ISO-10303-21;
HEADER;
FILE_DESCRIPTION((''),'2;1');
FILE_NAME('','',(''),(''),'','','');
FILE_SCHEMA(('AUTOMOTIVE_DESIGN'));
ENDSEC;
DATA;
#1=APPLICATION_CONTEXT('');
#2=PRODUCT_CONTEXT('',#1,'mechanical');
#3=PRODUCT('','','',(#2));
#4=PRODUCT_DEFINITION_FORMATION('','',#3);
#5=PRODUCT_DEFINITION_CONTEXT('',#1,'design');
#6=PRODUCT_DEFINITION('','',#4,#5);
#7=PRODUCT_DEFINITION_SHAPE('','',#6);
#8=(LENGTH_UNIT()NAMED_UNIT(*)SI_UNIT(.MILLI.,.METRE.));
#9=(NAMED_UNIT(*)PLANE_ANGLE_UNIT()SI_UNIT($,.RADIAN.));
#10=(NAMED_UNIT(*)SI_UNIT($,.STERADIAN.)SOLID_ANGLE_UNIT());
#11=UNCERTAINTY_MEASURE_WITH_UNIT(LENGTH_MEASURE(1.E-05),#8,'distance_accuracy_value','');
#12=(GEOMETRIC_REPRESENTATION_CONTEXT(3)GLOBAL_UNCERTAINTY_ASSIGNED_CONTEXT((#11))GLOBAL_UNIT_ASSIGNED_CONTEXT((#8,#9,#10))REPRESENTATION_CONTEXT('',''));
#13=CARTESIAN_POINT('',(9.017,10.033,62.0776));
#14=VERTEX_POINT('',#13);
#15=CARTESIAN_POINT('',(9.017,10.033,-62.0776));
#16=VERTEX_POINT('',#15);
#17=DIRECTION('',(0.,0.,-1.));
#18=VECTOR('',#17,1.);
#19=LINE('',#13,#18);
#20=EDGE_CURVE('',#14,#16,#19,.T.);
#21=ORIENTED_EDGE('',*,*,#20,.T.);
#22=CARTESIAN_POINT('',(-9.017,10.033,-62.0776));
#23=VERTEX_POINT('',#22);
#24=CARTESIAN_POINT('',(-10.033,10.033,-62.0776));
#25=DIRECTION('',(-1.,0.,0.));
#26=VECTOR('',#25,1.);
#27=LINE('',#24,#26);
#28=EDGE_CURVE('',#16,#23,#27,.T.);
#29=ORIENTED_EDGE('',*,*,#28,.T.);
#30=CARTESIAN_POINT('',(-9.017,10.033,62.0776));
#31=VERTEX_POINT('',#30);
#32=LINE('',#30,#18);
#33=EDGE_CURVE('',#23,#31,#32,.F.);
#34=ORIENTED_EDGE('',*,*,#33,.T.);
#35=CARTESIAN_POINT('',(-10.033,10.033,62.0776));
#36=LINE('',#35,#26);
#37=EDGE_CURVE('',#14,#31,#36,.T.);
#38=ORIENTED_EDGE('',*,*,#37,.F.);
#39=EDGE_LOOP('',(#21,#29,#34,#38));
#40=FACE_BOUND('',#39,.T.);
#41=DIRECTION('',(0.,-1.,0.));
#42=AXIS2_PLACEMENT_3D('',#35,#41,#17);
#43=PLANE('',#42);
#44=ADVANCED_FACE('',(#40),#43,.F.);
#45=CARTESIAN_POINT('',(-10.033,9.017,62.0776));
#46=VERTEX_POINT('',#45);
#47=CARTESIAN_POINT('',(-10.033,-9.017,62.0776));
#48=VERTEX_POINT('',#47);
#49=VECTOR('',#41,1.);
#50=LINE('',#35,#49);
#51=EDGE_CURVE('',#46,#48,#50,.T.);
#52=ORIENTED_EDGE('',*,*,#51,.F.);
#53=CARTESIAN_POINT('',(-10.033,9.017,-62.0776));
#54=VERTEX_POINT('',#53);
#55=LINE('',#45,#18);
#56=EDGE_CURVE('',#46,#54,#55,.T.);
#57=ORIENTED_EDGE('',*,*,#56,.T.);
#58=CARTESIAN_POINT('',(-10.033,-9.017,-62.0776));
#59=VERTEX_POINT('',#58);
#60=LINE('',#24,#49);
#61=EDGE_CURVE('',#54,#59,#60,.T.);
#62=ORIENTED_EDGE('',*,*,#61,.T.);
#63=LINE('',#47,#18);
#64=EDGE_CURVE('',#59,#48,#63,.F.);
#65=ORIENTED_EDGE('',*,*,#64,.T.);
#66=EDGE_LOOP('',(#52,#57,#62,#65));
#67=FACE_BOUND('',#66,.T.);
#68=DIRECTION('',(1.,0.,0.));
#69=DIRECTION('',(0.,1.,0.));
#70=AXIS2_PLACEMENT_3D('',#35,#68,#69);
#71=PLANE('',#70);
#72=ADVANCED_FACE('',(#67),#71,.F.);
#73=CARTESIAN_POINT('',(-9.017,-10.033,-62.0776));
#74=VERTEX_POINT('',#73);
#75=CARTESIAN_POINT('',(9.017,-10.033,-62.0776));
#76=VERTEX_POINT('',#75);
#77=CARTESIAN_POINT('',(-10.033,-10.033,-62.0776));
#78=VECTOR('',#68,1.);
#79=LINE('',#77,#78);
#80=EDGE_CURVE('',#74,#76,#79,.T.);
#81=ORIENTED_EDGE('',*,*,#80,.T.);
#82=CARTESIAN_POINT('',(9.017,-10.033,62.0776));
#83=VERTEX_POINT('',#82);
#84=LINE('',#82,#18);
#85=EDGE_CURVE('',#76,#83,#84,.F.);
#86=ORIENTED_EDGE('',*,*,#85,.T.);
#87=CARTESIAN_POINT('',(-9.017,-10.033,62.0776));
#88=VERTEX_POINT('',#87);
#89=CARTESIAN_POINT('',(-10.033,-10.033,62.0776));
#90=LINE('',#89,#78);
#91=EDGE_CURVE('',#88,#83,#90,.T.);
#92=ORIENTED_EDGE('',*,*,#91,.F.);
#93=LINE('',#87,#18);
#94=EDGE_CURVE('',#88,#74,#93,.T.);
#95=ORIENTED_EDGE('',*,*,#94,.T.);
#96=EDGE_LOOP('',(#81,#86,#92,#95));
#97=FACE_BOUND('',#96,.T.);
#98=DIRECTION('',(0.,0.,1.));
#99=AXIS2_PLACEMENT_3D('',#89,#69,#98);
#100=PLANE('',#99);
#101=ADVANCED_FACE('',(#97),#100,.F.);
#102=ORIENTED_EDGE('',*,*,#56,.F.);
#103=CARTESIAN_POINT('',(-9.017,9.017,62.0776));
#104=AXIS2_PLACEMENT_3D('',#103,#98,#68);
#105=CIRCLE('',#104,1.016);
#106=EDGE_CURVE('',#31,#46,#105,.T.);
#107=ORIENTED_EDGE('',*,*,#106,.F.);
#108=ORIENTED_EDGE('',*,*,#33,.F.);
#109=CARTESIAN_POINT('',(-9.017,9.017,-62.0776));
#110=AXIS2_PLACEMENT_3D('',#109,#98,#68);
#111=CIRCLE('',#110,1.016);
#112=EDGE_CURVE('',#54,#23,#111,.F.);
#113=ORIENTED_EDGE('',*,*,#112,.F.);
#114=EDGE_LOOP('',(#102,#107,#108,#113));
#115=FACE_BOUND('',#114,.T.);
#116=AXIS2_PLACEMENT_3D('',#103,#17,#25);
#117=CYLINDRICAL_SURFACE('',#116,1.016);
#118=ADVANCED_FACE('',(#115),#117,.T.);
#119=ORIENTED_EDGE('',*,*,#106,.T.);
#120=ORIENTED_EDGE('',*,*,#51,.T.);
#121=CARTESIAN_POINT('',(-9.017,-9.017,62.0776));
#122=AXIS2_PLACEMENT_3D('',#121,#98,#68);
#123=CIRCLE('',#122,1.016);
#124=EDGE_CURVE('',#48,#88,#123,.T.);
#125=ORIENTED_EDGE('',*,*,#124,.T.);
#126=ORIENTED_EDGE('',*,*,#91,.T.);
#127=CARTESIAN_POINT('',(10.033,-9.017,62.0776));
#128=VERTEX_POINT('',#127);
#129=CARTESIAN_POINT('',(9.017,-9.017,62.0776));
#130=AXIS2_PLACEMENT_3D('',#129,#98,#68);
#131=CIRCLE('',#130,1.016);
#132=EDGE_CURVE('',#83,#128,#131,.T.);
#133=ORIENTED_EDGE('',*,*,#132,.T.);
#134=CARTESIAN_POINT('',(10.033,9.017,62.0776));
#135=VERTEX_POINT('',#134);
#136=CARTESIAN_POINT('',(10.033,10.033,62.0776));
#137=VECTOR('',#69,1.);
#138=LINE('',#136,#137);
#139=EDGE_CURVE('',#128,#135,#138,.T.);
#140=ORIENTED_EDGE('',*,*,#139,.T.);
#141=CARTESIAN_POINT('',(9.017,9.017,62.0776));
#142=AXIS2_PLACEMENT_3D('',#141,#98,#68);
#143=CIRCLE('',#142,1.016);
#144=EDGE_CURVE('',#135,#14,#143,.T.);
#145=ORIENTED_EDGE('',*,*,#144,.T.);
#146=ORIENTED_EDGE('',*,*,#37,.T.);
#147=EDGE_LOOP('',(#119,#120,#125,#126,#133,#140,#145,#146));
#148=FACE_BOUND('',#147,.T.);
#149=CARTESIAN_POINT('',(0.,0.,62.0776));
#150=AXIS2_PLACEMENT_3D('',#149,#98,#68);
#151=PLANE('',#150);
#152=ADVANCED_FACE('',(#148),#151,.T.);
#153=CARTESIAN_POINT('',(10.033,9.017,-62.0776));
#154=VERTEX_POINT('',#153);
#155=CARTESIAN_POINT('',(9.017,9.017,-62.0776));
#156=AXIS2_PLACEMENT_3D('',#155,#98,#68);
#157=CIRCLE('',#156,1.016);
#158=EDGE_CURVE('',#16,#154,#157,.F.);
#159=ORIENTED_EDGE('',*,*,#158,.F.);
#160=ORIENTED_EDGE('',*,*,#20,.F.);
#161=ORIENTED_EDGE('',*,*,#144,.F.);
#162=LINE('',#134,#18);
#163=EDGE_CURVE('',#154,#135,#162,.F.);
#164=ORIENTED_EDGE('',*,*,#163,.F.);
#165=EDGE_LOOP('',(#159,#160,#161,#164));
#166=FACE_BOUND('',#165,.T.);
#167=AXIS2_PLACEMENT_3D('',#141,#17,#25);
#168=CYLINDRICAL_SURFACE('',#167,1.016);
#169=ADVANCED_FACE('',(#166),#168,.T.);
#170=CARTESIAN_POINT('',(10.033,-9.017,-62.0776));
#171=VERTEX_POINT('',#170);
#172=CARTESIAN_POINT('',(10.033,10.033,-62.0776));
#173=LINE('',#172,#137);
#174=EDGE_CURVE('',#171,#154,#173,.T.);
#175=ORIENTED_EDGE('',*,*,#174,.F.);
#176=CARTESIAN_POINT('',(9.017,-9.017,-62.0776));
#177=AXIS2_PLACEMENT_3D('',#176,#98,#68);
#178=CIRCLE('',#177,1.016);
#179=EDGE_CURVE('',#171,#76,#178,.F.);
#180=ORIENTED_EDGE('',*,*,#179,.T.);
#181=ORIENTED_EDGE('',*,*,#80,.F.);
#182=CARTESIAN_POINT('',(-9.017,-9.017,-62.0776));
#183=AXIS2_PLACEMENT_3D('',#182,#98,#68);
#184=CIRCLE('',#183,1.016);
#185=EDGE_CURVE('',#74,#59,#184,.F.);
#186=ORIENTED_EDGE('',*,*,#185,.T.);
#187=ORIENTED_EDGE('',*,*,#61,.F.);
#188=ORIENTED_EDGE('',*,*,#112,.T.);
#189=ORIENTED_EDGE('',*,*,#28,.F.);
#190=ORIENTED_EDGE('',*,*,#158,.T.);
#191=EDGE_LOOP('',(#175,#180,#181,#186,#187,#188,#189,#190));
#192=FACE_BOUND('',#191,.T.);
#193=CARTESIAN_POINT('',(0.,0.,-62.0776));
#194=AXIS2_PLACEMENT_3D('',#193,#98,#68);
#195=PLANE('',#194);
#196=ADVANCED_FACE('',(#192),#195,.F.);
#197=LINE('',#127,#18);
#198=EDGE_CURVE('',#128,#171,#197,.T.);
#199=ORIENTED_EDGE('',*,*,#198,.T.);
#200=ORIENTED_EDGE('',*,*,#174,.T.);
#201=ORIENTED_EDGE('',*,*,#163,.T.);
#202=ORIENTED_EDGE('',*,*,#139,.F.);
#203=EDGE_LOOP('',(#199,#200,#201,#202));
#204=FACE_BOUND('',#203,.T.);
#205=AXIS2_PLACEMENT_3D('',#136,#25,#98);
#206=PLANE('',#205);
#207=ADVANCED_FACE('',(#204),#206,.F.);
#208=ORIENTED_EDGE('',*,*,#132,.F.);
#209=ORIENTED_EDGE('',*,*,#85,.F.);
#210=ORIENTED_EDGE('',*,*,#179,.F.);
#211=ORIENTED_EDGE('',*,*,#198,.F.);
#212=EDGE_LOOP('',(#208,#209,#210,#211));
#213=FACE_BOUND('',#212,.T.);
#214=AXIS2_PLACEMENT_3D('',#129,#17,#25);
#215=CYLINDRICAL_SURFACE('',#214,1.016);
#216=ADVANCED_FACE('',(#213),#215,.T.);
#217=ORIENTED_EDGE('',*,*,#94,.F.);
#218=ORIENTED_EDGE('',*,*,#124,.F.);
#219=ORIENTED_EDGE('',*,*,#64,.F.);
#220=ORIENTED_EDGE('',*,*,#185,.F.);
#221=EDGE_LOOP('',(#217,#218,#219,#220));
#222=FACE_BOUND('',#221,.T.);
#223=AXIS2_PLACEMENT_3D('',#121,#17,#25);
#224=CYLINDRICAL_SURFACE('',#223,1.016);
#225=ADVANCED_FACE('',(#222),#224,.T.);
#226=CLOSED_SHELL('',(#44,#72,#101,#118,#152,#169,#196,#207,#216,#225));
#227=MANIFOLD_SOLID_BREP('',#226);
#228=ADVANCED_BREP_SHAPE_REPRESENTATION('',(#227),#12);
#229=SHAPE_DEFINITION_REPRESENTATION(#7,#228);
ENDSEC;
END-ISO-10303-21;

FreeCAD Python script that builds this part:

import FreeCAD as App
import Part
import Sketcher

V = App.Vector
Q = App.Units.Quantity


def edges_at(feature, points):
    """Names of the edges that pass closest to the given points."""
    edges = feature.Shape.Edges
    near = lambda p: min(range(len(edges)), key=lambda i: edges[i].distToShape(Part.Vertex(*p))[0])
    return sorted({f"Edge{near(p) + 1}" for p in points})

doc = App.newDocument("Part")
body = doc.addObject("PartDesign::Body", "Body")

# Sketch on XY plane
sketch1 = body.newObject("Sketcher::SketchObject", "Sketch")
sketch1.AttachmentSupport = (doc.getObject("XY_Plane"), [""])
sketch1.MapMode = "FlatFace"
sketch1.addGeometry([
    Part.LineSegment(V(-10, 10, 0), V(-10, -10, 0)),
    Part.LineSegment(V(-10, -10, 0), V(10, -10, 0)),
    Part.LineSegment(V(10, -10, 0), V(10, 10, 0)),
    Part.LineSegment(V(10, 10, 0), V(-10, 10, 0)),
], False)
sketch1.addConstraint([
    Sketcher.Constraint("Coincident", 0, 2, 1, 1),
    Sketcher.Constraint("Coincident", 1, 2, 2, 1),
    Sketcher.Constraint("Coincident", 2, 2, 3, 1),
    Sketcher.Constraint("Coincident", 3, 2, 0, 1),
    Sketcher.Constraint("Vertical", 0),
    Sketcher.Constraint("Horizontal", 1),
    Sketcher.Constraint("Vertical", 2),
    Sketcher.Constraint("Horizontal", 3),
    Sketcher.Constraint("Symmetric", 0, 2, 2, 2, -1, 1),
    Sketcher.Constraint("Equal", 3, 0),
    Sketcher.Constraint("DistanceX", 1, 1, 1, 2, Q("0.79 in")),
])
pad1 = body.newObject("PartDesign::Pad", "Pad")
pad1.Profile = sketch1
pad1.Length = Q("4.888 in")
pad1.Midplane = True
doc.recompute()

fillet = body.newObject("PartDesign::Fillet", "Fillet")
fillet.Base = (pad1, edges_at(pad1, [
    (10.033, -10.033, 0),
    (-10.033, -10.033, 0),
    (-10.033, 10.033, 0),
    (10.033, 10.033, 0),
]))
fillet.Radius = Q("0.04 in")

doc.recompute()
